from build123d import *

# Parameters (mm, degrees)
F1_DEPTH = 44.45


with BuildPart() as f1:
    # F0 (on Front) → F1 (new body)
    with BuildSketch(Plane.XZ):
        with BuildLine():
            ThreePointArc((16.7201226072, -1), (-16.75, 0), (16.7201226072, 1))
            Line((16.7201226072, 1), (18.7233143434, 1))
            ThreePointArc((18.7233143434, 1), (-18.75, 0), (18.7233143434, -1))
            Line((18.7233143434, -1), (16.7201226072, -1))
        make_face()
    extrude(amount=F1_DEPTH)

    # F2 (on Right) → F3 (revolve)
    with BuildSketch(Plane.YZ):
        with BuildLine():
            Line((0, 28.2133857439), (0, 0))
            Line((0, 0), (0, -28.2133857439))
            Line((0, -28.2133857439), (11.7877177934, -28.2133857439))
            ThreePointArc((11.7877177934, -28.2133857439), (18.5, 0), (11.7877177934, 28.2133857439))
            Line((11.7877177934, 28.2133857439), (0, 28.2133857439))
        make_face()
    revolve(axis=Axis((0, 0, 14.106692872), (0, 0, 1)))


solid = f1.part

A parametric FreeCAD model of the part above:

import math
import FreeCAD as App
import Part
import Sketcher
from FreeCAD import Vector
Q = App.Units.Quantity

doc = App.newDocument("Part")
body = doc.addObject("PartDesign::Body", "Body")

sketch1 = body.newObject("Sketcher::SketchObject", "Sketch")
sketch1.AttachmentSupport = (doc.getObject("XZ_Plane"), [""])
sketch1.MapMode = "FlatFace"
sketch1.addGeometry([
    Part.ArcOfCircle(Part.Circle(Vector(0, 0, 0), Vector(0, 0, 1), 16.8), math.radians(3), math.radians(357)),
    Part.LineSegment(Vector(16.7, 1, 0), Vector(18.7, 1, 0)),
    Part.ArcOfCircle(Part.Circle(Vector(0, 0, 0), Vector(0, 0, 1), 18.8), math.radians(3), math.radians(357)),
    Part.LineSegment(Vector(18.7, -1, 0), Vector(16.7, -1, 0)),
], False)
sketch1.addConstraint([
    Sketcher.Constraint("Coincident", 0, 1, 1, 1),
    Sketcher.Constraint("Coincident", 1, 2, 2, 1),
    Sketcher.Constraint("Coincident", 2, 2, 3, 1),
    Sketcher.Constraint("Coincident", 3, 2, 0, 2),
    Sketcher.Constraint("Horizontal", 1),
    Sketcher.Constraint("Horizontal", 3),
    Sketcher.Constraint("Coincident", 0, 3, -1, 1),
    Sketcher.Constraint("Coincident", 2, 3, -1, 1),
    Sketcher.Constraint("Vertical", 1, 2, 2, 2),
    Sketcher.Constraint("Radius", 0, Q("16.75 mm")),
    Sketcher.Constraint("Radius", 2, Q("18.75 mm")),
    Sketcher.Constraint("DistanceY", -1, 1, 0, 1, Q("1 mm")),
])
pad1 = body.newObject("PartDesign::Pad", "Pad")
pad1.Profile = sketch1
pad1.Length = 44.45

sketch2 = body.newObject("Sketcher::SketchObject", "Sketch001")
sketch2.AttachmentSupport = (doc.getObject("YZ_Plane"), [""])
sketch2.MapMode = "FlatFace"
sketch2.addGeometry([
    Part.LineSegment(Vector(0, 28, 0), Vector(0, -28, 0)),
    Part.LineSegment(Vector(0, -28, 0), Vector(12, -28, 0)),
    Part.ArcOfCircle(Part.Circle(Vector(-44, 0, 0), Vector(0, 0, 1), 63), math.radians(-27), math.radians(27)),
    Part.LineSegment(Vector(12, 28, 0), Vector(0, 28, 0)),
], False)
sketch2.addConstraint([
    Sketcher.Constraint("Coincident", 0, 2, 1, 1),
    Sketcher.Constraint("Coincident", 1, 2, 2, 1),
    Sketcher.Constraint("Coincident", 2, 2, 3, 1),
    Sketcher.Constraint("Coincident", 3, 2, 0, 1),
    Sketcher.Constraint("Vertical", 0),
    Sketcher.Constraint("Horizontal", 1),
    Sketcher.Constraint("Horizontal", 3),
    Sketcher.Constraint("Symmetric", 0, 2, 3, 2, -1, 1),
    Sketcher.Constraint("PointOnObject", 2, 3, -1),
    Sketcher.Constraint("Radius", 2, Q("62.650068 mm")),
    Sketcher.Constraint("DistanceY", 0, 2, 0, 1, Q("56.426771 mm")),
    Sketcher.Constraint("DistanceX", 1, 1, 1, 2, Q("11.787718 mm")),
])
revolution = body.newObject("PartDesign::Revolution", "Revolution")
revolution.Profile = sketch2
revolution.ReferenceAxis = (sketch2, ["V_Axis"])
revolution.Angle = 360

doc.recompute()
